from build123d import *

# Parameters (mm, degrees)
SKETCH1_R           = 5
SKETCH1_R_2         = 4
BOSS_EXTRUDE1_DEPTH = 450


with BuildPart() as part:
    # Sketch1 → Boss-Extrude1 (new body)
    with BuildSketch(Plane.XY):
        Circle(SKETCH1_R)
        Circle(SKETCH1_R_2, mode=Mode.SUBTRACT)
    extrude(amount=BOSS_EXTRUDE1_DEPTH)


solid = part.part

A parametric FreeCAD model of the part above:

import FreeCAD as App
import Part
import Sketcher
from FreeCAD import Vector

doc = App.newDocument("Part")
body = doc.addObject("PartDesign::Body", "Body")

# Sketch on XY plane
sketch1 = body.newObject("Sketcher::SketchObject", "Sketch")
sketch1.AttachmentSupport = (doc.getObject("XY_Plane"), [""])
sketch1.MapMode = "FlatFace"
sketch1.addGeometry([
    Part.Circle(Vector(0, 0, 0), Vector(0, 0, 1), 5),
    Part.Circle(Vector(0, 0, 0), Vector(0, 0, 1), 4),
], False)
sketch1.addConstraint([
    Sketcher.Constraint("Coincident", 0, 3, -1, 1),
    Sketcher.Constraint("Coincident", 1, 3, -1, 1),
    Sketcher.Constraint("Diameter", 0, 10.0),
    Sketcher.Constraint("Diameter", 1, 8.0),
])
pad1 = body.newObject("PartDesign::Pad", "Pad")
pad1.Profile = sketch1
pad1.Length = 450

doc.recompute()
